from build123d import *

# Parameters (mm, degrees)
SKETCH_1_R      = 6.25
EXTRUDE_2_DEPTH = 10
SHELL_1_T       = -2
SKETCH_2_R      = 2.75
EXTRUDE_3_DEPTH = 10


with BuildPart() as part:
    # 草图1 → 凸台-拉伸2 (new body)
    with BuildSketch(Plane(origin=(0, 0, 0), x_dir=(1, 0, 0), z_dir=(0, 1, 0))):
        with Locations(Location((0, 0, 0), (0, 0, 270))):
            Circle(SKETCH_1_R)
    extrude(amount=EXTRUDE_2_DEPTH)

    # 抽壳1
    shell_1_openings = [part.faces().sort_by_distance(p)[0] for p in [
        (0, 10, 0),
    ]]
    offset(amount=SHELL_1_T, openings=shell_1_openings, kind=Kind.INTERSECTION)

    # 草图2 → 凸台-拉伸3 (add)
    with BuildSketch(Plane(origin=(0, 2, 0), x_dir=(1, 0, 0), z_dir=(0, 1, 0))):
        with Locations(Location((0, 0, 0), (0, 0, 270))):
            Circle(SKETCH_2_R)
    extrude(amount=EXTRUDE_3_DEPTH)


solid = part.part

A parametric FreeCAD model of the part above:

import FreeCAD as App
import Part
import Sketcher

V = App.Vector
Q = App.Units.Quantity


def faces_at(feature, points):
    """Names of the faces that lie closest to the given points."""
    faces = feature.Shape.Faces
    near = lambda p: min(range(len(faces)), key=lambda i: faces[i].distToShape(Part.Vertex(*p))[0])
    return sorted({f"Face{near(p) + 1}" for p in points})

doc = App.newDocument("Part")
body = doc.addObject("PartDesign::Body", "Body")

sketch1 = body.newObject("Sketcher::SketchObject", "Sketch")
sketch1.AttachmentSupport = (doc.getObject("XZ_Plane"), [""])
sketch1.MapMode = "FlatFace"
sketch1.addGeometry(Part.Circle(V(0, 0, 0), V(0, 0, 1), 6), False)
sketch1.addConstraint([
    Sketcher.Constraint("Coincident", 0, 3, -1, 1),
    Sketcher.Constraint("Diameter", 0, Q("12.5 mm")),
])
pad1 = body.newObject("PartDesign::Pad", "Pad")
pad1.Profile = sketch1
pad1.Length = 10
pad1.Reversed = True
doc.recompute()

thickness = body.newObject("PartDesign::Thickness", "Thickness")
thickness.Base = (pad1, faces_at(pad1, [(0, 10, 0)]))
thickness.Value = 2
thickness.Reversed = True
thickness.Join = "Intersection"

sketch2 = body.newObject("Sketcher::SketchObject", "Sketch001")
sketch2.AttachmentSupport = (doc.getObject("XZ_Plane"), [""])
sketch2.MapMode = "FlatFace"
sketch2.AttachmentOffset = App.Placement(V(0, 0, -2), App.Rotation())
sketch2.addGeometry(Part.Circle(V(0, 0, 0), V(0, 0, 1), 2.8), False)
sketch2.addConstraint([
    Sketcher.Constraint("Coincident", 0, 3, -1, 1),
    Sketcher.Constraint("Diameter", 0, Q("5.5 mm")),
])
pad2 = body.newObject("PartDesign::Pad", "Pad001")
pad2.Profile = sketch2
pad2.Length = 10
pad2.Reversed = True

doc.recompute()
